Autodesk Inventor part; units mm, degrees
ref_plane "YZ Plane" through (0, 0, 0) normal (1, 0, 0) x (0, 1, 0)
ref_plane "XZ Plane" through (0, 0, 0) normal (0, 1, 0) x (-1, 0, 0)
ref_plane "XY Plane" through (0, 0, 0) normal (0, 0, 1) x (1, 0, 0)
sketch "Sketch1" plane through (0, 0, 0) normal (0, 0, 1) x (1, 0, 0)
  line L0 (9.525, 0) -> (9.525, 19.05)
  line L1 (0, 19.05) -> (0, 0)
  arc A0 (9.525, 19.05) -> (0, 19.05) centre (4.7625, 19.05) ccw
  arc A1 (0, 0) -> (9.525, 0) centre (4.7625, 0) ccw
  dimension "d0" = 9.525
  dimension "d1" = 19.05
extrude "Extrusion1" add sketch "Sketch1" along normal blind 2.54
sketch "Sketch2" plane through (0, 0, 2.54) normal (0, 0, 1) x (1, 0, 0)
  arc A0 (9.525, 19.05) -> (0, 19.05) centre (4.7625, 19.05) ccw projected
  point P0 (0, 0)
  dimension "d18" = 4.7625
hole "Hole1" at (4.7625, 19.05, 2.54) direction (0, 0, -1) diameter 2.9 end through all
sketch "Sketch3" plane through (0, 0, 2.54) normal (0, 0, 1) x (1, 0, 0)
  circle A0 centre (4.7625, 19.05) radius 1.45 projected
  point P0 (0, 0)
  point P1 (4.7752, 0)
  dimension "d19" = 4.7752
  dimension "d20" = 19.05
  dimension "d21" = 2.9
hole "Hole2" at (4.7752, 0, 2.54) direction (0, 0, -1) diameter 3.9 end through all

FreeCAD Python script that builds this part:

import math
import FreeCAD as App
import Part
import Sketcher

V = App.Vector
Q = App.Units.Quantity

doc = App.newDocument("Part")
params = doc.addObject("Spreadsheet::Sheet", "Params")
for row, (alias, value) in enumerate([
    ("sketch1_radius", "0.1875 in"),
    ("sketch1_height", "0.75 in"),
    ("pad1_length", "0.1 in"),
    ("hole_diameter", "2.9 mm"),
    ("hole2_diameter", "3.9 mm"),
], start=1):
    params.set(f"A{row}", alias)
    params.set(f"B{row}", "=" + value)
    params.setAlias(f"B{row}", alias)

body = doc.addObject("PartDesign::Body", "Body")

sketch1 = doc.addObject("Sketcher::SketchObject", "Sketch")
body.addObject(sketch1)
sketch1.AttachmentSupport = (doc.XY_Plane, [""])
sketch1.MapMode = "FlatFace"
sketch1.addGeometry([
    Part.ArcOfCircle(Part.Circle(V(4.8, 0, 0), V(0, 0, 1), 4.8), math.radians(180), math.radians(360)),
    Part.LineSegment(V(9.5, 0, 0), V(9.5, 19.1, 0)),
    Part.ArcOfCircle(Part.Circle(V(4.8, 19.1, 0), V(0, 0, 1), 4.8), math.radians(0), math.radians(180)),
    Part.LineSegment(V(0, 19.1, 0), V(0, 0, 0)),
], False)
sketch1.addConstraint([
    Sketcher.Constraint("Tangent", 0, 2, 1, 1),
    Sketcher.Constraint("Tangent", 1, 2, 2, 1),
    Sketcher.Constraint("Tangent", 2, 2, 3, 1),
    Sketcher.Constraint("Tangent", 3, 2, 0, 1),
    Sketcher.Constraint("Vertical", 1),
    Sketcher.Constraint("Vertical", 3),
    Sketcher.Constraint("Coincident", 3, 2, -1, 1),
    Sketcher.Constraint("Radius", 0, Q("0.1875 in")),
    Sketcher.Constraint("DistanceY", 1, 1, 1, 2, Q("0.75 in")),
])
sketch1.setExpression("Constraints[7]", "Params.sketch1_radius")
sketch1.setExpression("Constraints[8]", "Params.sketch1_height")
pad1 = doc.addObject("PartDesign::Pad", "Pad")
body.addObject(pad1)
pad1.Profile = sketch1
pad1.setExpression("Length", "Params.pad1_length")

sketch2 = doc.addObject("Sketcher::SketchObject", "Sketch001")
body.addObject(sketch2)
sketch2.AttachmentSupport = (doc.XY_Plane, [""])
sketch2.MapMode = "FlatFace"
sketch2.AttachmentOffset = App.Placement(V(0, 0, 0.1 * 25.4), App.Rotation())
sketch2.addGeometry(Part.Circle(V(4.8, 19.1, 0), V(0, 0, 1), 1.4), False)
sketch2.addConstraint([
    Sketcher.Constraint("Diameter", 0, Q("2.9 mm")),
    Sketcher.Constraint("DistanceY", -1, 1, 0, 3, Q("0.75 in")),
    Sketcher.Constraint("DistanceX", -1, 1, 0, 3, Q("0.1875 in")),
])
doc.recompute()
hole = doc.addObject("PartDesign::Hole", "Hole")
body.addObject(hole)
hole.Profile = sketch2
hole.ThreadType = "None"
hole.setExpression("Diameter", "Params.hole_diameter")
hole.DepthType = "ThroughAll"

sketch3 = doc.addObject("Sketcher::SketchObject", "Sketch002")
body.addObject(sketch3)
sketch3.AttachmentSupport = (doc.XY_Plane, [""])
sketch3.MapMode = "FlatFace"
sketch3.AttachmentOffset = App.Placement(V(0, 0, 0.1 * 25.4), App.Rotation())
sketch3.addGeometry(Part.Circle(V(4.8, 0, 0), V(0, 0, 1), 1.9), False)
sketch3.addConstraint([
    Sketcher.Constraint("PointOnObject", 0, 3, -1),
    Sketcher.Constraint("Diameter", 0, Q("3.9 mm")),
    Sketcher.Constraint("DistanceX", -1, 1, 0, 3, Q("0.188 in")),
])
doc.recompute()
hole2 = doc.addObject("PartDesign::Hole", "Hole001")
body.addObject(hole2)
hole2.Profile = sketch3
hole2.ThreadType = "None"
hole2.setExpression("Diameter", "Params.hole2_diameter")
hole2.DepthType = "ThroughAll"

doc.recompute()
